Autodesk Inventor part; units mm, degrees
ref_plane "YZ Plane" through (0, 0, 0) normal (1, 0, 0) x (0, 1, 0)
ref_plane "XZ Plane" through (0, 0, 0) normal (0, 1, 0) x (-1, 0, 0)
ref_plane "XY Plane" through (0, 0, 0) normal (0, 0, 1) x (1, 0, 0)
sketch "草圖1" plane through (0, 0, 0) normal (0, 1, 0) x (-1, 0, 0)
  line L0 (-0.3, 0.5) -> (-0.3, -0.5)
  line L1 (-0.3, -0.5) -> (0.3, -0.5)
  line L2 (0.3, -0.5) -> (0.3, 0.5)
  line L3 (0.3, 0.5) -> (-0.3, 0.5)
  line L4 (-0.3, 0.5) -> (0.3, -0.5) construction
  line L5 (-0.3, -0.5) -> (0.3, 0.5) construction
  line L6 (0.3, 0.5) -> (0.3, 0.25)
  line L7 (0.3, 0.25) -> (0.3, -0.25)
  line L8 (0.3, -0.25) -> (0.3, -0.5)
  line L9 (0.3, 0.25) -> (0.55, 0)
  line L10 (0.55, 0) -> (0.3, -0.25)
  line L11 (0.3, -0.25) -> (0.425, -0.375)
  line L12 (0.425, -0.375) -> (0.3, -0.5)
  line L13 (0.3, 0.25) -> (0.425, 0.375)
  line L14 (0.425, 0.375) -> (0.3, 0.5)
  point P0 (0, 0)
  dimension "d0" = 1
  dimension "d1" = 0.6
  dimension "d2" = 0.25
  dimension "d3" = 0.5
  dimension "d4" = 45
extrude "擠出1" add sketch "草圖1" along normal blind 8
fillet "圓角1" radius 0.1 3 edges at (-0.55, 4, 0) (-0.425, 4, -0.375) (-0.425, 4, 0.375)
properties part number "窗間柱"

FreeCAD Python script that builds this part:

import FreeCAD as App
import Part
import Sketcher
from FreeCAD import Vector


def edges_at(feature, points):
    """Names of the edges that pass closest to the given points."""
    edges = feature.Shape.Edges
    near = lambda p: min(range(len(edges)), key=lambda i: edges[i].distToShape(Part.Vertex(*p))[0])
    return sorted({f"Edge{near(p) + 1}" for p in points})


def add_polygon(sketch, points):
    """Adds a closed chain of lines whose ends are joined by coincident constraints."""
    first, n = sketch.GeometryCount, len(points)
    for a, b in zip(points, points[1:] + points[:1]):
        sketch.addGeometry(Part.LineSegment(App.Vector(*a, 0), App.Vector(*b, 0)), False)
    for i in range(n):
        sketch.addConstraint(Sketcher.Constraint("Coincident", first + i, 2, first + (i + 1) % n, 1))

doc = App.newDocument("Part")
params = doc.addObject("Spreadsheet::Sheet", "Params")
for row, (alias, value) in enumerate([
    ("sketch1_height", "1 mm"),
    ("sketch1_width", "0.6 mm"),
    ("pad1_length", "8 mm"),
    ("fillet_radius", "0.1 mm"),
], start=1):
    params.set(f"A{row}", alias)
    params.set(f"B{row}", "=" + value)
    params.setAlias(f"B{row}", alias)

body = doc.addObject("PartDesign::Body", "Body")

# Sketch on XZ plane
sketch1 = body.newObject("Sketcher::SketchObject", "Sketch")
sketch1.AttachmentSupport = (doc.getObject("XZ_Plane"), [""])
sketch1.MapMode = "FlatFace"
add_polygon(sketch1, [(-0.3, 0.5), (0.3, 0.5), (0.3, -0.5), (-0.3, -0.5), (-0.42, -0.38), (-0.3, -0.25), (-0.55, 0), (-0.3, 0.25), (-0.42, 0.38)])  # lines 0-8
sketch1.addConstraint(Sketcher.Constraint("Horizontal", 0))
sketch1.addConstraint(Sketcher.Constraint("Vertical", 1))
sketch1.addConstraint(Sketcher.Constraint("Horizontal", 2))
sketch1.addConstraint(Sketcher.Constraint("Symmetric", 0, 2, 2, 2, -1, 1))
sketch1.addConstraint(Sketcher.Constraint("Symmetric", 4, 2, 6, 2, -1))
sketch1.addConstraint(Sketcher.Constraint("Symmetric", 3, 2, 7, 2, -1))
sketch1.addConstraint(Sketcher.Constraint("PointOnObject", 5, 2, -1))
sketch1.addConstraint(Sketcher.Constraint("Perpendicular", 3, 4))
sketch1.addConstraint(Sketcher.Constraint("Perpendicular", 4, 5))
sketch1.addConstraint(Sketcher.Constraint("Perpendicular", 5, 6))
sketch1.addConstraint(Sketcher.Constraint("Perpendicular", 7, 8))
sketch1.addConstraint(Sketcher.Constraint("Vertical", 2, 2, 4, 2))
sketch1.addConstraint(Sketcher.Constraint("DistanceY", 1, 2, 1, 1, 1.0))
sketch1.addConstraint(Sketcher.Constraint("DistanceX", 0, 1, 0, 2, 0.6))
sketch1.addConstraint(Sketcher.Constraint("DistanceY", 4, 2, 6, 2, 0.5))
sketch1.setExpression("Constraints[21]", "Params.sketch1_height")
sketch1.setExpression("Constraints[22]", "Params.sketch1_width")
pad1 = body.newObject("PartDesign::Pad", "Pad")
pad1.Profile = sketch1
pad1.setExpression("Length", "Params.pad1_length")
pad1.Reversed = True
doc.recompute()

fillet = body.newObject("PartDesign::Fillet", "Fillet")
fillet.Base = (pad1, edges_at(pad1, [(-0.55, 4, 0), (-0.425, 4, -0.375), (-0.425, 4, 0.375)]))
fillet.setExpression("Radius", "Params.fillet_radius")

doc.recompute()
